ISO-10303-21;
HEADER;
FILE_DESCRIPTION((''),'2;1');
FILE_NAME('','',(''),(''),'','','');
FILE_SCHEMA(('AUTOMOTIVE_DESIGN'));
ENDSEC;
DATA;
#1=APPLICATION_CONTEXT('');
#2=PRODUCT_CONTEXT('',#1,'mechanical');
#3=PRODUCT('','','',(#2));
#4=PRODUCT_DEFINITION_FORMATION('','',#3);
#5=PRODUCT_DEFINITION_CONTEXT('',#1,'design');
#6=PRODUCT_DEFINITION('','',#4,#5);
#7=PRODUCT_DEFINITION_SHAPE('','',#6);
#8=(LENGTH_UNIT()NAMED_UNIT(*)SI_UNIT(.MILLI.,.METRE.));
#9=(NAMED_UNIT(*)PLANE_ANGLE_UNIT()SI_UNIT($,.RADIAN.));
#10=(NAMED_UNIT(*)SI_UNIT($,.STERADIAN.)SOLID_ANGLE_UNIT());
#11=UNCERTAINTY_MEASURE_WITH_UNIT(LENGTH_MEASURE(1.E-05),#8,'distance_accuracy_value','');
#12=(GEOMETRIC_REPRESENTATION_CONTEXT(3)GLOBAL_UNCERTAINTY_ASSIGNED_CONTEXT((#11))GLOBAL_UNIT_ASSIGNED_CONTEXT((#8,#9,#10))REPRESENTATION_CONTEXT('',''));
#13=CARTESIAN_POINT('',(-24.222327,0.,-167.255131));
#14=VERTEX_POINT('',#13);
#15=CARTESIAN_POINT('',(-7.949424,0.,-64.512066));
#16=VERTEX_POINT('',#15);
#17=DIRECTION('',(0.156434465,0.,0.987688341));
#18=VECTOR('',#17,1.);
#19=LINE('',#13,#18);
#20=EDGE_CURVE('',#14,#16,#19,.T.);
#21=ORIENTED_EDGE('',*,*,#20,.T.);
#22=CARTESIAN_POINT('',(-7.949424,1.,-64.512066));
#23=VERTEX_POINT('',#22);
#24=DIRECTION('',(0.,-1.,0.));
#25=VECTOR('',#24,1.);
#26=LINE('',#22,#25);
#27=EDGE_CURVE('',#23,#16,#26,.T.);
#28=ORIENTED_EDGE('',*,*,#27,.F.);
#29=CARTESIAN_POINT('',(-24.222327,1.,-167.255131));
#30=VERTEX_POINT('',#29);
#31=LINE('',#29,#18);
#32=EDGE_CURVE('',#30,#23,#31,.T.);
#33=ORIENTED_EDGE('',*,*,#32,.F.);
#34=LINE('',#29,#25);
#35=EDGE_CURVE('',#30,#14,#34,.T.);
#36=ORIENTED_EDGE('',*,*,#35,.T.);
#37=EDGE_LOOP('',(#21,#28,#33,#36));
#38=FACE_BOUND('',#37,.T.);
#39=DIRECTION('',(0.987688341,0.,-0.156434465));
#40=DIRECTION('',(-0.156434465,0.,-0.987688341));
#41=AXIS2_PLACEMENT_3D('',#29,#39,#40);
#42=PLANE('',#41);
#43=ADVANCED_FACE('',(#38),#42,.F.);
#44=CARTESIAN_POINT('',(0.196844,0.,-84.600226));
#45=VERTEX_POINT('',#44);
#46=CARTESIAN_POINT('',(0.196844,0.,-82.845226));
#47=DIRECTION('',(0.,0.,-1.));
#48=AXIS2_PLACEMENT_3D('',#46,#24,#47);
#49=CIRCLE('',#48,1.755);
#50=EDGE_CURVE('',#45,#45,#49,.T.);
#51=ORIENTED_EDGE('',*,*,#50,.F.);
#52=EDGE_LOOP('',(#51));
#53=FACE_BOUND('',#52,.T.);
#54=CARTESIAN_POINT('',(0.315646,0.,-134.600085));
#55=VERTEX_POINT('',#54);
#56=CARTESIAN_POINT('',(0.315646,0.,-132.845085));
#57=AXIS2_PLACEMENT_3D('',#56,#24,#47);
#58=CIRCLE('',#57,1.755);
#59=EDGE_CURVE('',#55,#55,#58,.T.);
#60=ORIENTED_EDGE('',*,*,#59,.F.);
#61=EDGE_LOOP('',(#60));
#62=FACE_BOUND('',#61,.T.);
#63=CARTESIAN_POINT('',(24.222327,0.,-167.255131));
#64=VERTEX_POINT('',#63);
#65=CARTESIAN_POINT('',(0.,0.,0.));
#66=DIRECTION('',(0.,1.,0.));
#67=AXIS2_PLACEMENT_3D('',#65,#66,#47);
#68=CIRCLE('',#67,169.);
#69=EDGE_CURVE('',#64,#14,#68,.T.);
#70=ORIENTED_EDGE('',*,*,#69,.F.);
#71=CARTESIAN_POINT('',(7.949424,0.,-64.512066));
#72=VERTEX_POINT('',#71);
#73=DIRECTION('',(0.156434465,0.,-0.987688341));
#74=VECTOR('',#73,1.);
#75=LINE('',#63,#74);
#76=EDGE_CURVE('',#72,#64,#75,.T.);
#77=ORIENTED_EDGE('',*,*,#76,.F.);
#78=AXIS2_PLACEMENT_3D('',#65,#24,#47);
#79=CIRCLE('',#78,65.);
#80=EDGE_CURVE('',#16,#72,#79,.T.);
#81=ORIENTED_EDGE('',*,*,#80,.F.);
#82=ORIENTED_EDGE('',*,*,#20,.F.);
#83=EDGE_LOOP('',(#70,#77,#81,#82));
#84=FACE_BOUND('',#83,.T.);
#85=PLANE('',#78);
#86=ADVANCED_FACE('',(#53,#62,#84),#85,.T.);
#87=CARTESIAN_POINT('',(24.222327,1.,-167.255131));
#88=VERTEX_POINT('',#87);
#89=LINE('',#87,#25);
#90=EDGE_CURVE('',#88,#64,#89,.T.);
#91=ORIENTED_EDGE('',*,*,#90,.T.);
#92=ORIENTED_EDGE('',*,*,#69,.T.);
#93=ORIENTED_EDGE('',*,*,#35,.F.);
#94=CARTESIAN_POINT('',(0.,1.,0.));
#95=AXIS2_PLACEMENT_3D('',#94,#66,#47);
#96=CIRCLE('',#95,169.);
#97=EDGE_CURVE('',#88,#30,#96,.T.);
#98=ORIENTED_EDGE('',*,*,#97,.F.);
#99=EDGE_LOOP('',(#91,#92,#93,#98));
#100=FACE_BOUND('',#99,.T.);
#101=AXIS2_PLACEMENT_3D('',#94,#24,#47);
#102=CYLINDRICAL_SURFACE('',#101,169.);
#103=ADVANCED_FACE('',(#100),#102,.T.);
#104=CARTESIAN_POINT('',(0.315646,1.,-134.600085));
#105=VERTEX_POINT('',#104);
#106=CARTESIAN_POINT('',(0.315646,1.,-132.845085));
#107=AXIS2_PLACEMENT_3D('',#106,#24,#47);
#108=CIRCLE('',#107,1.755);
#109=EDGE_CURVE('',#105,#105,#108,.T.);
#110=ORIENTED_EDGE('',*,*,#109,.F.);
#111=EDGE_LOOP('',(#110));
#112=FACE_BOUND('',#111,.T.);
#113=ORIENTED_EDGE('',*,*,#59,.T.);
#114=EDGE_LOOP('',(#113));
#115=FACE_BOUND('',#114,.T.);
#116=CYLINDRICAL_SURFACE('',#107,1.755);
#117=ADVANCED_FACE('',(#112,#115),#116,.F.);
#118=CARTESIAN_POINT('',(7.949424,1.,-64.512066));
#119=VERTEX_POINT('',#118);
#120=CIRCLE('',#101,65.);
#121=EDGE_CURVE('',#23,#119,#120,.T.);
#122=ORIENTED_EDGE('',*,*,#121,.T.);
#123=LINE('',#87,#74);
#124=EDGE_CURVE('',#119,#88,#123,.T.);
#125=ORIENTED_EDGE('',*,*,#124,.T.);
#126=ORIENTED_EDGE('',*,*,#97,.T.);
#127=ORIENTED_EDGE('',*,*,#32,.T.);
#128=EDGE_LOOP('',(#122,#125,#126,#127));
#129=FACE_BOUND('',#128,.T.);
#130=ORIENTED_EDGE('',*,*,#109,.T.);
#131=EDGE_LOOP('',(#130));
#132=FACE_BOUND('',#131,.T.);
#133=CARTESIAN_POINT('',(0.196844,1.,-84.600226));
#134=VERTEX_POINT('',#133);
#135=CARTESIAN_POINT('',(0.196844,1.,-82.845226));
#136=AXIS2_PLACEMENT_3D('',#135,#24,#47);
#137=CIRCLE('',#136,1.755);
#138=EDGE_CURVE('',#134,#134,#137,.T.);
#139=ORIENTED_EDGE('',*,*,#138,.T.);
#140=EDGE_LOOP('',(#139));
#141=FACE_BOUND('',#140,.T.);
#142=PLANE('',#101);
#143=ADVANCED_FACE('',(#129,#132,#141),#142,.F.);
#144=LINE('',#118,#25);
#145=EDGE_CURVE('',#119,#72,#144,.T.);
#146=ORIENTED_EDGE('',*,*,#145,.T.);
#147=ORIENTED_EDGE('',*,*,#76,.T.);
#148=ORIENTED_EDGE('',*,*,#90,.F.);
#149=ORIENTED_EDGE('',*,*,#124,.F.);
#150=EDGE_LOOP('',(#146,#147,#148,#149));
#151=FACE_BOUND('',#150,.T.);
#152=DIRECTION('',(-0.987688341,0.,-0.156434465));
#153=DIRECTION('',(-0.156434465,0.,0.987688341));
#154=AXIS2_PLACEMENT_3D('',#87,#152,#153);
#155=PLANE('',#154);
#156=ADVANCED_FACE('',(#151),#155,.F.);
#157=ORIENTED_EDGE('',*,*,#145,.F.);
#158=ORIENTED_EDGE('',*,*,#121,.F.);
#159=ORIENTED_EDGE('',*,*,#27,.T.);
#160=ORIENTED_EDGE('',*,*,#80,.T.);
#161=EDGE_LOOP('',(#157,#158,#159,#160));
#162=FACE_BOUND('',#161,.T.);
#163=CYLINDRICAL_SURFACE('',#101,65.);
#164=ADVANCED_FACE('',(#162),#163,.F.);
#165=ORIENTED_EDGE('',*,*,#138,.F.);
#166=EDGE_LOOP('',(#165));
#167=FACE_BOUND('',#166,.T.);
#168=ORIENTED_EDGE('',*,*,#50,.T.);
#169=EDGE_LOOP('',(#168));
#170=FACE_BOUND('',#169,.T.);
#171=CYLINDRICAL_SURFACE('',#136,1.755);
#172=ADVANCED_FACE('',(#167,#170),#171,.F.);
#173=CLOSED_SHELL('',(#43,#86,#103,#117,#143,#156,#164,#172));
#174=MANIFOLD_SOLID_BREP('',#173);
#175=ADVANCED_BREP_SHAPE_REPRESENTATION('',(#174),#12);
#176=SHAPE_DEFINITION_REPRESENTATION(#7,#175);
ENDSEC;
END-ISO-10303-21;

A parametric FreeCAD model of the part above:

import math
import FreeCAD as App
import Part
import Sketcher
from FreeCAD import Vector
Q = App.Units.Quantity

doc = App.newDocument("Part")
body = doc.addObject("PartDesign::Body", "Body")

# Sketch on XZ plane
sketch1 = body.newObject("Sketcher::SketchObject", "Sketch")
sketch1.AttachmentSupport = (doc.getObject("XZ_Plane"), [""])
sketch1.MapMode = "FlatFace"
sketch1.addGeometry([
    Part.LineSegment(Vector(-24, -167, 0), Vector(-8, -65, 0)),
    Part.ArcOfCircle(Part.Circle(Vector(0, 0, 0), Vector(0, 0, 1), 65), math.radians(-97.02), math.radians(-82.98)),
    Part.LineSegment(Vector(8, -65, 0), Vector(24, -167, 0)),
    Part.ArcOfCircle(Part.Circle(Vector(0, 0, 0), Vector(0, 0, 1), 169), math.radians(-98.24), math.radians(-81.76)),
], False)
sketch1.addConstraint([
    Sketcher.Constraint("Coincident", 0, 2, 1, 1),
    Sketcher.Constraint("Coincident", 1, 2, 2, 1),
    Sketcher.Constraint("Coincident", 2, 2, 3, 2),
    Sketcher.Constraint("Coincident", 3, 1, 0, 1),
    Sketcher.Constraint("Coincident", 1, 3, -1, 1),
    Sketcher.Constraint("Coincident", 3, 3, -1, 1),
    Sketcher.Constraint("Horizontal", 0, 2, 1, 2),
    Sketcher.Constraint("Horizontal", 2, 2, 3, 1),
    Sketcher.Constraint("Radius", 1, Q("65 mm")),
    Sketcher.Constraint("Radius", 3, Q("169 mm")),
    Sketcher.Constraint("Angle", 0, Q("81 deg")),
    Sketcher.Constraint("Distance", 0, Q("104.02377 mm")),
])
pad1 = body.newObject("PartDesign::Pad", "Pad")
pad1.Profile = sketch1
pad1.Length = 1
pad1.Reversed = True

# Sketch on XZ plane
sketch2 = body.newObject("Sketcher::SketchObject", "Sketch001")
sketch2.AttachmentSupport = (doc.getObject("XZ_Plane"), [""])
sketch2.MapMode = "FlatFace"
sketch2.addGeometry([
    Part.Circle(Vector(0.2, -82.8, 0), Vector(0, 0, 1), 1.8),
    Part.Circle(Vector(0.3, -132.8, 0), Vector(0, 0, 1), 1.8),
], False)
sketch2.addConstraint([
    Sketcher.Constraint("Equal", 0, 1),
    Sketcher.Constraint("Diameter", 0, Q("3.51 mm")),
    Sketcher.Constraint("DistanceY", 1, 3, 0, 3, Q("49.999859 mm")),
    Sketcher.Constraint("DistanceX", -1, 1, 0, 3, Q("0.196844 mm")),
    Sketcher.Constraint("DistanceY", 0, 3, -1, 1, Q("82.845226 mm")),
    Sketcher.Constraint("DistanceX", -1, 1, 1, 3, Q("0.315646 mm")),
])
pocket1 = body.newObject("PartDesign::Pocket", "Pocket")
pocket1.Profile = sketch2
pocket1.Type = "ThroughAll"

doc.recompute()
